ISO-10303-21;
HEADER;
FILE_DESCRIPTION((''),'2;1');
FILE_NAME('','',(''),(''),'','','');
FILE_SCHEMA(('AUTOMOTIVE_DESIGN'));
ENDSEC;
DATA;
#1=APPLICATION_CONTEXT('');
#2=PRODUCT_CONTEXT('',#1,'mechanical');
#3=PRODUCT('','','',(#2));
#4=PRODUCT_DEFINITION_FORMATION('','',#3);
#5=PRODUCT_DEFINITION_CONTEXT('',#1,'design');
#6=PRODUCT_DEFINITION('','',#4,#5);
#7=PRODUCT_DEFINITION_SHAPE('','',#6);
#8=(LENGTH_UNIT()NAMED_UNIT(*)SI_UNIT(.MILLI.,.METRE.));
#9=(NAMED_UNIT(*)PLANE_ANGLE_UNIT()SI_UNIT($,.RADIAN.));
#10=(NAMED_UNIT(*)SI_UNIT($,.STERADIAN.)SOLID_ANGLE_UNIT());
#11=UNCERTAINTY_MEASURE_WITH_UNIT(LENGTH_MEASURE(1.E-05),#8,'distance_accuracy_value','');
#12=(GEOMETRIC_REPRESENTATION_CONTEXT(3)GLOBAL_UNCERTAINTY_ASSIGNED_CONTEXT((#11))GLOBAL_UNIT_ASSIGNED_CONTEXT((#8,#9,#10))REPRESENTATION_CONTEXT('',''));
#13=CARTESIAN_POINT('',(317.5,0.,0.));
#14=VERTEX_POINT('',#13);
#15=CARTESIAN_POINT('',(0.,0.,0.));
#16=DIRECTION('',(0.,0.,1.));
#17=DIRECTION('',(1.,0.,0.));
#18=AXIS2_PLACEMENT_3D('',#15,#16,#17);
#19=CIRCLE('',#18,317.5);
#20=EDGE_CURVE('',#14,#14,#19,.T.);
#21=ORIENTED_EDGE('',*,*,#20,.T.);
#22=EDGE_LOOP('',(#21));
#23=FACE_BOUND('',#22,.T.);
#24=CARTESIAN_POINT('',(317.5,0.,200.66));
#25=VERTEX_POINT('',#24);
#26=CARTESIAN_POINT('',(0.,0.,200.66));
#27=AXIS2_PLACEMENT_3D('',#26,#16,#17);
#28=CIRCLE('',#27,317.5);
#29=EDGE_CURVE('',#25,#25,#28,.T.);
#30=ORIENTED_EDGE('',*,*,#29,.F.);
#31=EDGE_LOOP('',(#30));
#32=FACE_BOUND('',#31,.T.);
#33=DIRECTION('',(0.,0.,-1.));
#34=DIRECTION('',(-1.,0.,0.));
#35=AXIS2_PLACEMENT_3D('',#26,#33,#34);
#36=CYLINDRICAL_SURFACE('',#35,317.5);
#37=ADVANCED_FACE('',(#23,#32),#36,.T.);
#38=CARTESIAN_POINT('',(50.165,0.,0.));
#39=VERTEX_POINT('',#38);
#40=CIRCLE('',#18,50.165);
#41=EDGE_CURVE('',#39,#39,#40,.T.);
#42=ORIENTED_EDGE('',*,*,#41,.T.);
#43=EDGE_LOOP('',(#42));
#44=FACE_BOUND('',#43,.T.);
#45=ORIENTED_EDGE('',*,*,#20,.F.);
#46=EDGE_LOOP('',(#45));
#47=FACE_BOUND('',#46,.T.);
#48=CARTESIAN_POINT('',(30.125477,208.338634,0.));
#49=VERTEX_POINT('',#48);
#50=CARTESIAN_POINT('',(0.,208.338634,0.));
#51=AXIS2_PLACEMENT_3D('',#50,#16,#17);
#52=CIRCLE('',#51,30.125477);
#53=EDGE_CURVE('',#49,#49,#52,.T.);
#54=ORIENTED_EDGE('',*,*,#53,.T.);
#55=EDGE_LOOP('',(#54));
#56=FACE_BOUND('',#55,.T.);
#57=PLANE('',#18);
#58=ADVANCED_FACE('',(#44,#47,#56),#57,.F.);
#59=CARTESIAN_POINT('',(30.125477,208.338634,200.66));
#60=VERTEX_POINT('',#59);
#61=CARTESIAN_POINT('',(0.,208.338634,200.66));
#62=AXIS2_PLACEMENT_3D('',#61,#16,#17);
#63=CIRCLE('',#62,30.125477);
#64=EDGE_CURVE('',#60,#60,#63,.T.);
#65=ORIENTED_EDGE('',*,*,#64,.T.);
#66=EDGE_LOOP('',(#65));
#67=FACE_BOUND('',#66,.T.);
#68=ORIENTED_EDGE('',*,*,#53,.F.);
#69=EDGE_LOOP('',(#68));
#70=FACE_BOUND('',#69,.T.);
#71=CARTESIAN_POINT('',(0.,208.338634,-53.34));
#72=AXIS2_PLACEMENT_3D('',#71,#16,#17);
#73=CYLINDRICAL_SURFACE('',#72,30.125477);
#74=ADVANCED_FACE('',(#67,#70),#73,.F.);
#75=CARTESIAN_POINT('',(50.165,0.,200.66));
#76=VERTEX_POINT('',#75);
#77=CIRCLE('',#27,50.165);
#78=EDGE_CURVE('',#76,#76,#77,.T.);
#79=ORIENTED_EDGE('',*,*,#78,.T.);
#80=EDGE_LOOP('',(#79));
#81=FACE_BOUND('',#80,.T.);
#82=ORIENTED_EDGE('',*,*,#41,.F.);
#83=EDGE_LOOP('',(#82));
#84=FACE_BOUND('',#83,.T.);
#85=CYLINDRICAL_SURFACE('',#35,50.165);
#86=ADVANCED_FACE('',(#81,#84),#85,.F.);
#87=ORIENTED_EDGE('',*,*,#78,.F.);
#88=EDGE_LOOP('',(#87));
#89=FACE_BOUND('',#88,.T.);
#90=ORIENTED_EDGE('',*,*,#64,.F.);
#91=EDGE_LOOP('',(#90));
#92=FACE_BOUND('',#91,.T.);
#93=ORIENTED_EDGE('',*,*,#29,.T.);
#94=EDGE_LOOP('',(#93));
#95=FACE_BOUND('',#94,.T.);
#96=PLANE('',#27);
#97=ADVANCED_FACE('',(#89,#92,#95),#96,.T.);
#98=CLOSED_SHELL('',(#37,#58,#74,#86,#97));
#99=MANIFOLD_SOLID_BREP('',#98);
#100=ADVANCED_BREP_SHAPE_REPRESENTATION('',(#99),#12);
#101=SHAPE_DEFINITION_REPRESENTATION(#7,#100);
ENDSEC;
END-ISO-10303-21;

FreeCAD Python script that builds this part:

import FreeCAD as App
import Part
import Sketcher

V = App.Vector
Q = App.Units.Quantity

doc = App.newDocument("Part")
params = doc.addObject("Spreadsheet::Sheet", "Params")
for row, (alias, value) in enumerate([
    ("sketch1_diameter", "25 in"),
    ("sketch1_diameter2", "3.95 in"),
    ("pad1_length", "7.9 in"),
    ("pocket1_length", "10 in"),
], start=1):
    params.set(f"A{row}", alias)
    params.set(f"B{row}", "=" + value)
    params.setAlias(f"B{row}", alias)

body = doc.addObject("PartDesign::Body", "Body")

# Sketch on XY plane
sketch1 = body.newObject("Sketcher::SketchObject", "Sketch")
sketch1.AttachmentSupport = (doc.getObject("XY_Plane"), [""])
sketch1.MapMode = "FlatFace"
sketch1.addGeometry([
    Part.Circle(V(0, 0, 0), V(0, 0, 1), 317.5),
    Part.Circle(V(0, 0, 0), V(0, 0, 1), 50.165),
], False)
sketch1.addConstraint([
    Sketcher.Constraint("Coincident", 0, 3, -1, 1),
    Sketcher.Constraint("Coincident", 1, 3, -1, 1),
    Sketcher.Constraint("Diameter", 0, Q("25 in")),
    Sketcher.Constraint("Diameter", 1, Q("3.95 in")),
])
sketch1.setExpression("Constraints[2]", "Params.sketch1_diameter")
sketch1.setExpression("Constraints[3]", "Params.sketch1_diameter2")
pad1 = body.newObject("PartDesign::Pad", "Pad")
pad1.Profile = sketch1
pad1.setExpression("Length", "Params.pad1_length")

# Sketch on XY plane
sketch2 = body.newObject("Sketcher::SketchObject", "Sketch001")
sketch2.AttachmentSupport = (doc.getObject("XY_Plane"), [""])
sketch2.MapMode = "FlatFace"
sketch2.AttachmentOffset = App.Placement(V(0, 0, 7.9 * 25.4), App.Rotation())
sketch2.addGeometry(Part.Circle(V(0, 208.338634, 0), V(0, 0, 1), 30.125477), False)
sketch2.addConstraint([
    Sketcher.Constraint("PointOnObject", 0, 3, -2),
    Sketcher.Constraint("Diameter", 0, 60.250954),
    Sketcher.Constraint("DistanceY", -1, 1, 0, 3, 208.338634),
])
pocket1 = body.newObject("PartDesign::Pocket", "Pocket")
pocket1.Profile = sketch2
pocket1.setExpression("Length", "Params.pocket1_length")

doc.recompute()
